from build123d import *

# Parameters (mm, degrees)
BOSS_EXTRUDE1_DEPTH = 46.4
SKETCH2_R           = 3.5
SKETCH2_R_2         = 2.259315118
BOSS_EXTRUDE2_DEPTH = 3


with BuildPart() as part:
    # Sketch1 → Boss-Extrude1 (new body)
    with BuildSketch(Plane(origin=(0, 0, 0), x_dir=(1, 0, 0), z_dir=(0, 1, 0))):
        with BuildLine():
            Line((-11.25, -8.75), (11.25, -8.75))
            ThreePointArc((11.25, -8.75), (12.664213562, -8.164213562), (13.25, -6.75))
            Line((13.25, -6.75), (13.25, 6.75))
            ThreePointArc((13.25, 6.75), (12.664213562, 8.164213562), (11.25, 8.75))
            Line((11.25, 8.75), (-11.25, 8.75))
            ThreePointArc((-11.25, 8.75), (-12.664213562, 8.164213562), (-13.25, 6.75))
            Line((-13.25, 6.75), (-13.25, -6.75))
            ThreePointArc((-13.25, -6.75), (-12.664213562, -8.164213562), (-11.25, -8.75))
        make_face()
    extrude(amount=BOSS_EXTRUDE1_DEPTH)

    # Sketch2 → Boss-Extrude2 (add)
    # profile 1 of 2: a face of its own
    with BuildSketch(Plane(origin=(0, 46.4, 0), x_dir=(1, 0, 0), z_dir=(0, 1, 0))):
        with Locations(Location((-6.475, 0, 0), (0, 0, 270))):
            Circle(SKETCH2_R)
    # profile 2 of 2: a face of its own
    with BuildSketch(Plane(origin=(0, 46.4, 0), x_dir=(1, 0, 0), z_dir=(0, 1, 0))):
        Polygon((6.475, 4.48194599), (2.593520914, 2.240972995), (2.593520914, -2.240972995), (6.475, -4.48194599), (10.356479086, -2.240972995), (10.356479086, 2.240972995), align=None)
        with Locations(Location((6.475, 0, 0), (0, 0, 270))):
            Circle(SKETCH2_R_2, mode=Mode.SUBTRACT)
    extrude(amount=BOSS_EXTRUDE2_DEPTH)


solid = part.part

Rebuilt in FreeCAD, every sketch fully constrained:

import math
import FreeCAD as App
import Part
import Sketcher
from FreeCAD import Vector
Q = App.Units.Quantity

doc = App.newDocument("Part")
body = doc.addObject("PartDesign::Body", "Body")

sketch1 = doc.addObject("Sketcher::SketchObject", "Sketch")
body.addObject(sketch1)
sketch1.AttachmentSupport = (doc.XZ_Plane, [""])
sketch1.MapMode = "FlatFace"
sketch1.addGeometry([
    Part.LineSegment(Vector(-11.2, 8.8, 0), Vector(11.2, 8.8, 0)),
    Part.ArcOfCircle(Part.Circle(Vector(11.2, 6.7, 0), Vector(0, 0, 1), 2), math.radians(0), math.radians(90)),
    Part.LineSegment(Vector(13.2, 6.8, 0), Vector(13.2, -6.8, 0)),
    Part.ArcOfCircle(Part.Circle(Vector(11.2, -6.7, 0), Vector(0, 0, 1), 2), math.radians(-90), math.radians(0)),
    Part.LineSegment(Vector(11.2, -8.8, 0), Vector(-11.2, -8.8, 0)),
    Part.ArcOfCircle(Part.Circle(Vector(-11.2, -6.7, 0), Vector(0, 0, 1), 2), math.radians(-180), math.radians(-90)),
    Part.LineSegment(Vector(-13.2, -6.8, 0), Vector(-13.2, 6.8, 0)),
    Part.ArcOfCircle(Part.Circle(Vector(-11.2, 6.7, 0), Vector(0, 0, 1), 2), math.radians(90), math.radians(180)),
], False)
sketch1.addConstraint([
    Sketcher.Constraint("Tangent", 0, 2, 1, 2),
    Sketcher.Constraint("Tangent", 1, 1, 2, 1),
    Sketcher.Constraint("Tangent", 2, 2, 3, 2),
    Sketcher.Constraint("Tangent", 3, 1, 4, 1),
    Sketcher.Constraint("Tangent", 4, 2, 5, 2),
    Sketcher.Constraint("Tangent", 5, 1, 6, 1),
    Sketcher.Constraint("Tangent", 6, 2, 7, 2),
    Sketcher.Constraint("Tangent", 7, 1, 0, 1),
    Sketcher.Constraint("Horizontal", 0),
    Sketcher.Constraint("Vertical", 2),
    Sketcher.Constraint("Horizontal", 4),
    Sketcher.Constraint("Vertical", 6),
    Sketcher.Constraint("Equal", 1, 3),
    Sketcher.Constraint("Equal", 3, 5),
    Sketcher.Constraint("Equal", 5, 7),
    Sketcher.Constraint("Symmetric", 1, 3, 5, 3, -1, 1),
    Sketcher.Constraint("Radius", 1, 2.0),
    Sketcher.Constraint("DistanceX", 0, 1, 0, 2, 22.5),
    Sketcher.Constraint("DistanceY", 2, 2, 2, 1, 13.5),
])
pad1 = doc.addObject("PartDesign::Pad", "Pad")
body.addObject(pad1)
pad1.Profile = sketch1
pad1.Length = 46.4
pad1.Reversed = True

sketch2 = doc.addObject("Sketcher::SketchObject", "Sketch001")
body.addObject(sketch2)
sketch2.AttachmentSupport = (doc.XZ_Plane, [""])
sketch2.MapMode = "FlatFace"
sketch2.AttachmentOffset = App.Placement(Vector(0, 0, -46.4), App.Rotation())
sketch2.addGeometry([
    Part.Circle(Vector(-6.5, 0, 0), Vector(0, 0, 1), 3.5),
    Part.LineSegment(Vector(6.5, -4.5, 0), Vector(2.6, -2.2, 0)),
    Part.LineSegment(Vector(2.6, -2.2, 0), Vector(2.6, 2.2, 0)),
    Part.LineSegment(Vector(2.6, 2.2, 0), Vector(6.5, 4.5, 0)),
    Part.LineSegment(Vector(6.5, 4.5, 0), Vector(10.4, 2.2, 0)),
    Part.LineSegment(Vector(10.4, 2.2, 0), Vector(10.4, -2.2, 0)),
    Part.LineSegment(Vector(10.4, -2.2, 0), Vector(6.5, -4.5, 0)),
    Part.Circle(Vector(6.5, 0, 0), Vector(0, 0, 1), 2.3),
], False)
sketch2.addConstraint([
    Sketcher.Constraint("Coincident", 1, 2, 2, 1),
    Sketcher.Constraint("Coincident", 2, 2, 3, 1),
    Sketcher.Constraint("Coincident", 3, 2, 4, 1),
    Sketcher.Constraint("Coincident", 4, 2, 5, 1),
    Sketcher.Constraint("Coincident", 5, 2, 6, 1),
    Sketcher.Constraint("Coincident", 6, 2, 1, 1),
    Sketcher.Constraint("Vertical", 2),
    Sketcher.Constraint("Vertical", 5),
    Sketcher.Constraint("Symmetric", 0, 3, 7, 3, -1, 1),
    Sketcher.Constraint("Symmetric", 3, 2, 6, 2, -1),
    Sketcher.Constraint("PointOnObject", 0, 3, -1),
    Sketcher.Constraint("Parallel", 1, 4),
    Sketcher.Constraint("Parallel", 3, 6),
    Sketcher.Constraint("Horizontal", 2, 2, 4, 2),
    Sketcher.Constraint("Horizontal", 1, 2, 5, 2),
    Sketcher.Constraint("Vertical", 7, 3, 3, 2),
    Sketcher.Constraint("Diameter", 0, 7.0),
    Sketcher.Constraint("Angle", 1, Q("150 deg")),
    Sketcher.Constraint("Diameter", 7, 4.51863),
    Sketcher.Constraint("DistanceX", 0, 3, 7, 3, 12.95),
    Sketcher.Constraint("DistanceY", 2, 1, 2, 2, 4.481946),
    Sketcher.Constraint("DistanceX", -1, 1, 1, 2, 2.593521),
])
pad2 = doc.addObject("PartDesign::Pad", "Pad001")
body.addObject(pad2)
pad2.Profile = sketch2
pad2.Length = 3
pad2.Reversed = True

doc.recompute()
